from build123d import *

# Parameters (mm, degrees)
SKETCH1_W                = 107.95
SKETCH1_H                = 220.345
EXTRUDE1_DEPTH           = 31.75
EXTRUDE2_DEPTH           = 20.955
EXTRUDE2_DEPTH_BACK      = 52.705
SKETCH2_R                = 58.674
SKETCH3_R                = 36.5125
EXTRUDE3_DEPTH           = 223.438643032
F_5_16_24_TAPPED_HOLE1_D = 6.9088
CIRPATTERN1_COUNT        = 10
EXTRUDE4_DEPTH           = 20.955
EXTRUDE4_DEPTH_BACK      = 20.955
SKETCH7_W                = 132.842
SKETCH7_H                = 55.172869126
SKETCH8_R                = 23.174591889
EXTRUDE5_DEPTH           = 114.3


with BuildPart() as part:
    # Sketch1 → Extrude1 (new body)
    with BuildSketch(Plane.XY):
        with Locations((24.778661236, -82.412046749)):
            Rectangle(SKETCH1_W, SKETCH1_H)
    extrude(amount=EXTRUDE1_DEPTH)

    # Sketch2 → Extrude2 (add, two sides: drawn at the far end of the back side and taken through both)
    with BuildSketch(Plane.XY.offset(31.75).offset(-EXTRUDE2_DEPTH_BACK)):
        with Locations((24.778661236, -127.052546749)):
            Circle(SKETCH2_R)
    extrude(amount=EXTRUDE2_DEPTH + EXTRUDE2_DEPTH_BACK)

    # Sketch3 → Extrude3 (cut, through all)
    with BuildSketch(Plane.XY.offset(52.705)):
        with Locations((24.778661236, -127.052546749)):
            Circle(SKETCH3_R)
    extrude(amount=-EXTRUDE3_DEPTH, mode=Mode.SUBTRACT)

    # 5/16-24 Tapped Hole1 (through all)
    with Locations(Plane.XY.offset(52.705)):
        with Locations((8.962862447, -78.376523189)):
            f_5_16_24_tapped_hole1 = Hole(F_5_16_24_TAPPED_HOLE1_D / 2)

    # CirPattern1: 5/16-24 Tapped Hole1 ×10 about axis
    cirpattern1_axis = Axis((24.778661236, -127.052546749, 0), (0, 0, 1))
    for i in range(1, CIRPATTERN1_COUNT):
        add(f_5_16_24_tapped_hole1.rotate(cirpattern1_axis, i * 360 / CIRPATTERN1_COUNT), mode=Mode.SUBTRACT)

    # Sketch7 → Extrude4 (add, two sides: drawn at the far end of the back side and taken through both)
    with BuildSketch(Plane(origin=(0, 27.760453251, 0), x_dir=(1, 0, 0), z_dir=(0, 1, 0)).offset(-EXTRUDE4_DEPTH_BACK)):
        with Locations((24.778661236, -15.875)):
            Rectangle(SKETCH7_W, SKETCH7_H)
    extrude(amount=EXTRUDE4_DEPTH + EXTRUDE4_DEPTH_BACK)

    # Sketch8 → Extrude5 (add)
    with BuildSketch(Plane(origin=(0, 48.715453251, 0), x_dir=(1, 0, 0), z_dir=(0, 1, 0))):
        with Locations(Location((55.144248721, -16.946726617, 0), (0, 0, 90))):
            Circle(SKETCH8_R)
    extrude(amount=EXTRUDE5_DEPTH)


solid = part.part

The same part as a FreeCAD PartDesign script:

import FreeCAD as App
import Part
import Sketcher
Q = App.Units.Quantity

doc = App.newDocument("Part")
body = doc.addObject("PartDesign::Body", "Body")

sketch1 = body.newObject("Sketcher::SketchObject", "Sketch")
sketch1.AttachmentSupport = (doc.getObject("XY_Plane"), [""])
sketch1.MapMode = "FlatFace"
sketch1.addGeometry([
    Part.LineSegment(App.Vector(-29, 28, 0), App.Vector(-29, -193, 0)),
    Part.LineSegment(App.Vector(-29, -193, 0), App.Vector(79, -193, 0)),
    Part.LineSegment(App.Vector(79, -193, 0), App.Vector(79, 28, 0)),
    Part.LineSegment(App.Vector(79, 28, 0), App.Vector(-29, 28, 0)),
], False)
sketch1.addConstraint([
    Sketcher.Constraint("Coincident", 0, 2, 1, 1),
    Sketcher.Constraint("Coincident", 1, 2, 2, 1),
    Sketcher.Constraint("Coincident", 2, 2, 3, 1),
    Sketcher.Constraint("Coincident", 3, 2, 0, 1),
    Sketcher.Constraint("Vertical", 0),
    Sketcher.Constraint("Horizontal", 1),
    Sketcher.Constraint("Vertical", 2),
    Sketcher.Constraint("Horizontal", 3),
    Sketcher.Constraint("DistanceX", 1, 1, 1, 2, Q("4.25 in")),
    Sketcher.Constraint("DistanceY", 0, 2, 0, 1, Q("8.675 in")),
    Sketcher.Constraint("DistanceX", 0, 2, -1, 1, Q("29.196339 mm")),
    Sketcher.Constraint("DistanceY", 0, 2, -1, 1, Q("192.584547 mm")),
])
pad1 = body.newObject("PartDesign::Pad", "Pad")
pad1.Profile = sketch1
pad1.Length = Q("1.25 in")

sketch2 = body.newObject("Sketcher::SketchObject", "Sketch001")
sketch2.AttachmentSupport = (doc.getObject("XY_Plane"), [""])
sketch2.MapMode = "FlatFace"
sketch2.AttachmentOffset = App.Placement(App.Vector(0, 0, 1.25 * 25.4), App.Rotation())
sketch2.addGeometry(Part.Circle(App.Vector(25, -127, 0), App.Vector(0, 0, 1), 59), False)
sketch2.addConstraint([
    Sketcher.Constraint("Diameter", 0, Q("4.62 in")),
    Sketcher.Constraint("DistanceX", -1, 1, 0, 3, Q("24.778661 mm")),
    Sketcher.Constraint("DistanceY", 0, 3, -1, 1, Q("127.052547 mm")),
])
pad2 = body.newObject("PartDesign::Pad", "Pad001")
pad2.Profile = sketch2
pad2.Type = "TwoLengths"
pad2.Length = Q("0.825 in")
pad2.Length2 = Q("2.075 in")

sketch3 = body.newObject("Sketcher::SketchObject", "Sketch002")
sketch3.AttachmentSupport = (doc.getObject("XY_Plane"), [""])
sketch3.MapMode = "FlatFace"
sketch3.AttachmentOffset = App.Placement(App.Vector(0, 0, 2.075 * 25.4), App.Rotation())
sketch3.addGeometry(Part.Circle(App.Vector(25, -127, 0), App.Vector(0, 0, 1), 37), False)
sketch3.addConstraint([
    Sketcher.Constraint("Diameter", 0, Q("2.875 in")),
    Sketcher.Constraint("DistanceX", -1, 1, 0, 3, Q("24.778661 mm")),
    Sketcher.Constraint("DistanceY", 0, 3, -1, 1, Q("127.052547 mm")),
])
pocket1 = body.newObject("PartDesign::Pocket", "Pocket")
pocket1.Profile = sketch3
pocket1.Type = "ThroughAll"

sketch4 = body.newObject("Sketcher::SketchObject", "Sketch003")
sketch4.AttachmentSupport = (doc.getObject("XY_Plane"), [""])
sketch4.MapMode = "FlatFace"
sketch4.AttachmentOffset = App.Placement(App.Vector(0, 0, 2.075 * 25.4), App.Rotation())
sketch4.addGeometry(Part.Circle(App.Vector(9, -78.4, 0), App.Vector(0, 0, 1), 3.5), False)
sketch4.addConstraint([
    Sketcher.Constraint("Diameter", 0, Q("0.272 in")),
    Sketcher.Constraint("DistanceX", -1, 1, 0, 3, Q("8.962862 mm")),
    Sketcher.Constraint("DistanceY", 0, 3, -1, 1, Q("78.376523 mm")),
])
doc.recompute()
hole = body.newObject("PartDesign::Hole", "Hole")
hole.Profile = sketch4
hole.ThreadType = "None"
hole.Diameter = Q("0.272 in")
hole.DepthType = "ThroughAll"
doc.recompute()

datumline = body.newObject("PartDesign::Line", "DatumLine")
datumline.Placement = App.Placement(App.Vector(24.778661, -127.052547, 0), App.Rotation(App.Vector(0, 0, 1), App.Vector(0, 0, 1)))
polarpattern = body.newObject("PartDesign::PolarPattern", "PolarPattern")
polarpattern.Originals = [hole]
polarpattern.Axis = (datumline, [""])
polarpattern.Angle = 360
polarpattern.Occurrences = 10
body.Tip = polarpattern

sketch5 = body.newObject("Sketcher::SketchObject", "Sketch004")
sketch5.AttachmentSupport = (doc.getObject("XZ_Plane"), [""])
sketch5.MapMode = "FlatFace"
sketch5.AttachmentOffset = App.Placement(App.Vector(0, 0, -27.760453), App.Rotation())
sketch5.addGeometry([
    Part.LineSegment(App.Vector(-42, -12, 0), App.Vector(-42, 43, 0)),
    Part.LineSegment(App.Vector(-42, 43, 0), App.Vector(91, 43, 0)),
    Part.LineSegment(App.Vector(91, 43, 0), App.Vector(91, -12, 0)),
    Part.LineSegment(App.Vector(91, -12, 0), App.Vector(-42, -12, 0)),
], False)
sketch5.addConstraint([
    Sketcher.Constraint("Coincident", 0, 2, 1, 1),
    Sketcher.Constraint("Coincident", 1, 2, 2, 1),
    Sketcher.Constraint("Coincident", 2, 2, 3, 1),
    Sketcher.Constraint("Coincident", 3, 2, 0, 1),
    Sketcher.Constraint("Vertical", 0),
    Sketcher.Constraint("Horizontal", 1),
    Sketcher.Constraint("Vertical", 2),
    Sketcher.Constraint("Horizontal", 3),
    Sketcher.Constraint("DistanceX", 1, 1, 1, 2, Q("5.23 in")),
    Sketcher.Constraint("DistanceY", 0, 1, 0, 2, Q("55.172869 mm")),
    Sketcher.Constraint("DistanceX", 0, 2, -1, 1, Q("41.642339 mm")),
    Sketcher.Constraint("DistanceY", -1, 1, 0, 2, Q("43.461435 mm")),
])
pad3 = body.newObject("PartDesign::Pad", "Pad002")
pad3.Profile = sketch5
pad3.Type = "TwoLengths"
pad3.Length = Q("0.825 in")
pad3.Length2 = Q("0.825 in")
pad3.Reversed = True

sketch6 = body.newObject("Sketcher::SketchObject", "Sketch005")
sketch6.AttachmentSupport = (doc.getObject("XZ_Plane"), [""])
sketch6.MapMode = "FlatFace"
sketch6.AttachmentOffset = App.Placement(App.Vector(0, 0, -48.715453), App.Rotation())
sketch6.addGeometry(Part.Circle(App.Vector(55, 17, 0), App.Vector(0, 0, 1), 23), False)
sketch6.addConstraint([
    Sketcher.Constraint("Diameter", 0, Q("46.349184 mm")),
    Sketcher.Constraint("DistanceX", -1, 1, 0, 3, Q("55.144249 mm")),
    Sketcher.Constraint("DistanceY", -1, 1, 0, 3, Q("16.946727 mm")),
])
pad4 = body.newObject("PartDesign::Pad", "Pad003")
pad4.Profile = sketch6
pad4.Length = Q("4.5 in")
pad4.Reversed = True

doc.recompute()
